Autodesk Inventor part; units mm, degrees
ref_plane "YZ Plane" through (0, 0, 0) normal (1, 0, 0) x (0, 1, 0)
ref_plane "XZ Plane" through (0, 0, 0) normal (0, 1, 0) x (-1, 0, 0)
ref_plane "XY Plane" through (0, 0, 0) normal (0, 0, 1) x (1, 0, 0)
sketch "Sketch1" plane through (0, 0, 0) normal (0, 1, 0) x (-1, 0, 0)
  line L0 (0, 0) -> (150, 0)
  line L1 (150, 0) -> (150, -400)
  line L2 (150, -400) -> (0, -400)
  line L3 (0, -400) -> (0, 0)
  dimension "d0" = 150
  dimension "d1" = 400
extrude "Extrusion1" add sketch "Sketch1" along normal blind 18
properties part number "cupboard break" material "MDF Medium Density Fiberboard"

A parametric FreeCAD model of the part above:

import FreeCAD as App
import Part
import Sketcher
from FreeCAD import Vector

doc = App.newDocument("Part")
body = doc.addObject("PartDesign::Body", "Body")

sketch1 = body.newObject("Sketcher::SketchObject", "Sketch")
sketch1.AttachmentSupport = (doc.getObject("XZ_Plane"), [""])
sketch1.MapMode = "FlatFace"
sketch1.addGeometry([
    Part.LineSegment(Vector(-150, 0, 0), Vector(0, 0, 0)),
    Part.LineSegment(Vector(0, 0, 0), Vector(0, -400, 0)),
    Part.LineSegment(Vector(0, -400, 0), Vector(-150, -400, 0)),
    Part.LineSegment(Vector(-150, -400, 0), Vector(-150, 0, 0)),
], False)
sketch1.addConstraint([
    Sketcher.Constraint("Coincident", 0, 2, 1, 1),
    Sketcher.Constraint("Coincident", 1, 2, 2, 1),
    Sketcher.Constraint("Coincident", 2, 2, 3, 1),
    Sketcher.Constraint("Coincident", 3, 2, 0, 1),
    Sketcher.Constraint("Horizontal", 0),
    Sketcher.Constraint("Vertical", 1),
    Sketcher.Constraint("Horizontal", 2),
    Sketcher.Constraint("Vertical", 3),
    Sketcher.Constraint("Coincident", 0, 2, -1, 1),
    Sketcher.Constraint("DistanceX", 0, 1, 0, 2, 150.0),
    Sketcher.Constraint("DistanceY", 1, 2, 1, 1, 400.0),
])
pad1 = body.newObject("PartDesign::Pad", "Pad")
pad1.Profile = sketch1
pad1.Length = 18
pad1.Reversed = True

doc.recompute()
